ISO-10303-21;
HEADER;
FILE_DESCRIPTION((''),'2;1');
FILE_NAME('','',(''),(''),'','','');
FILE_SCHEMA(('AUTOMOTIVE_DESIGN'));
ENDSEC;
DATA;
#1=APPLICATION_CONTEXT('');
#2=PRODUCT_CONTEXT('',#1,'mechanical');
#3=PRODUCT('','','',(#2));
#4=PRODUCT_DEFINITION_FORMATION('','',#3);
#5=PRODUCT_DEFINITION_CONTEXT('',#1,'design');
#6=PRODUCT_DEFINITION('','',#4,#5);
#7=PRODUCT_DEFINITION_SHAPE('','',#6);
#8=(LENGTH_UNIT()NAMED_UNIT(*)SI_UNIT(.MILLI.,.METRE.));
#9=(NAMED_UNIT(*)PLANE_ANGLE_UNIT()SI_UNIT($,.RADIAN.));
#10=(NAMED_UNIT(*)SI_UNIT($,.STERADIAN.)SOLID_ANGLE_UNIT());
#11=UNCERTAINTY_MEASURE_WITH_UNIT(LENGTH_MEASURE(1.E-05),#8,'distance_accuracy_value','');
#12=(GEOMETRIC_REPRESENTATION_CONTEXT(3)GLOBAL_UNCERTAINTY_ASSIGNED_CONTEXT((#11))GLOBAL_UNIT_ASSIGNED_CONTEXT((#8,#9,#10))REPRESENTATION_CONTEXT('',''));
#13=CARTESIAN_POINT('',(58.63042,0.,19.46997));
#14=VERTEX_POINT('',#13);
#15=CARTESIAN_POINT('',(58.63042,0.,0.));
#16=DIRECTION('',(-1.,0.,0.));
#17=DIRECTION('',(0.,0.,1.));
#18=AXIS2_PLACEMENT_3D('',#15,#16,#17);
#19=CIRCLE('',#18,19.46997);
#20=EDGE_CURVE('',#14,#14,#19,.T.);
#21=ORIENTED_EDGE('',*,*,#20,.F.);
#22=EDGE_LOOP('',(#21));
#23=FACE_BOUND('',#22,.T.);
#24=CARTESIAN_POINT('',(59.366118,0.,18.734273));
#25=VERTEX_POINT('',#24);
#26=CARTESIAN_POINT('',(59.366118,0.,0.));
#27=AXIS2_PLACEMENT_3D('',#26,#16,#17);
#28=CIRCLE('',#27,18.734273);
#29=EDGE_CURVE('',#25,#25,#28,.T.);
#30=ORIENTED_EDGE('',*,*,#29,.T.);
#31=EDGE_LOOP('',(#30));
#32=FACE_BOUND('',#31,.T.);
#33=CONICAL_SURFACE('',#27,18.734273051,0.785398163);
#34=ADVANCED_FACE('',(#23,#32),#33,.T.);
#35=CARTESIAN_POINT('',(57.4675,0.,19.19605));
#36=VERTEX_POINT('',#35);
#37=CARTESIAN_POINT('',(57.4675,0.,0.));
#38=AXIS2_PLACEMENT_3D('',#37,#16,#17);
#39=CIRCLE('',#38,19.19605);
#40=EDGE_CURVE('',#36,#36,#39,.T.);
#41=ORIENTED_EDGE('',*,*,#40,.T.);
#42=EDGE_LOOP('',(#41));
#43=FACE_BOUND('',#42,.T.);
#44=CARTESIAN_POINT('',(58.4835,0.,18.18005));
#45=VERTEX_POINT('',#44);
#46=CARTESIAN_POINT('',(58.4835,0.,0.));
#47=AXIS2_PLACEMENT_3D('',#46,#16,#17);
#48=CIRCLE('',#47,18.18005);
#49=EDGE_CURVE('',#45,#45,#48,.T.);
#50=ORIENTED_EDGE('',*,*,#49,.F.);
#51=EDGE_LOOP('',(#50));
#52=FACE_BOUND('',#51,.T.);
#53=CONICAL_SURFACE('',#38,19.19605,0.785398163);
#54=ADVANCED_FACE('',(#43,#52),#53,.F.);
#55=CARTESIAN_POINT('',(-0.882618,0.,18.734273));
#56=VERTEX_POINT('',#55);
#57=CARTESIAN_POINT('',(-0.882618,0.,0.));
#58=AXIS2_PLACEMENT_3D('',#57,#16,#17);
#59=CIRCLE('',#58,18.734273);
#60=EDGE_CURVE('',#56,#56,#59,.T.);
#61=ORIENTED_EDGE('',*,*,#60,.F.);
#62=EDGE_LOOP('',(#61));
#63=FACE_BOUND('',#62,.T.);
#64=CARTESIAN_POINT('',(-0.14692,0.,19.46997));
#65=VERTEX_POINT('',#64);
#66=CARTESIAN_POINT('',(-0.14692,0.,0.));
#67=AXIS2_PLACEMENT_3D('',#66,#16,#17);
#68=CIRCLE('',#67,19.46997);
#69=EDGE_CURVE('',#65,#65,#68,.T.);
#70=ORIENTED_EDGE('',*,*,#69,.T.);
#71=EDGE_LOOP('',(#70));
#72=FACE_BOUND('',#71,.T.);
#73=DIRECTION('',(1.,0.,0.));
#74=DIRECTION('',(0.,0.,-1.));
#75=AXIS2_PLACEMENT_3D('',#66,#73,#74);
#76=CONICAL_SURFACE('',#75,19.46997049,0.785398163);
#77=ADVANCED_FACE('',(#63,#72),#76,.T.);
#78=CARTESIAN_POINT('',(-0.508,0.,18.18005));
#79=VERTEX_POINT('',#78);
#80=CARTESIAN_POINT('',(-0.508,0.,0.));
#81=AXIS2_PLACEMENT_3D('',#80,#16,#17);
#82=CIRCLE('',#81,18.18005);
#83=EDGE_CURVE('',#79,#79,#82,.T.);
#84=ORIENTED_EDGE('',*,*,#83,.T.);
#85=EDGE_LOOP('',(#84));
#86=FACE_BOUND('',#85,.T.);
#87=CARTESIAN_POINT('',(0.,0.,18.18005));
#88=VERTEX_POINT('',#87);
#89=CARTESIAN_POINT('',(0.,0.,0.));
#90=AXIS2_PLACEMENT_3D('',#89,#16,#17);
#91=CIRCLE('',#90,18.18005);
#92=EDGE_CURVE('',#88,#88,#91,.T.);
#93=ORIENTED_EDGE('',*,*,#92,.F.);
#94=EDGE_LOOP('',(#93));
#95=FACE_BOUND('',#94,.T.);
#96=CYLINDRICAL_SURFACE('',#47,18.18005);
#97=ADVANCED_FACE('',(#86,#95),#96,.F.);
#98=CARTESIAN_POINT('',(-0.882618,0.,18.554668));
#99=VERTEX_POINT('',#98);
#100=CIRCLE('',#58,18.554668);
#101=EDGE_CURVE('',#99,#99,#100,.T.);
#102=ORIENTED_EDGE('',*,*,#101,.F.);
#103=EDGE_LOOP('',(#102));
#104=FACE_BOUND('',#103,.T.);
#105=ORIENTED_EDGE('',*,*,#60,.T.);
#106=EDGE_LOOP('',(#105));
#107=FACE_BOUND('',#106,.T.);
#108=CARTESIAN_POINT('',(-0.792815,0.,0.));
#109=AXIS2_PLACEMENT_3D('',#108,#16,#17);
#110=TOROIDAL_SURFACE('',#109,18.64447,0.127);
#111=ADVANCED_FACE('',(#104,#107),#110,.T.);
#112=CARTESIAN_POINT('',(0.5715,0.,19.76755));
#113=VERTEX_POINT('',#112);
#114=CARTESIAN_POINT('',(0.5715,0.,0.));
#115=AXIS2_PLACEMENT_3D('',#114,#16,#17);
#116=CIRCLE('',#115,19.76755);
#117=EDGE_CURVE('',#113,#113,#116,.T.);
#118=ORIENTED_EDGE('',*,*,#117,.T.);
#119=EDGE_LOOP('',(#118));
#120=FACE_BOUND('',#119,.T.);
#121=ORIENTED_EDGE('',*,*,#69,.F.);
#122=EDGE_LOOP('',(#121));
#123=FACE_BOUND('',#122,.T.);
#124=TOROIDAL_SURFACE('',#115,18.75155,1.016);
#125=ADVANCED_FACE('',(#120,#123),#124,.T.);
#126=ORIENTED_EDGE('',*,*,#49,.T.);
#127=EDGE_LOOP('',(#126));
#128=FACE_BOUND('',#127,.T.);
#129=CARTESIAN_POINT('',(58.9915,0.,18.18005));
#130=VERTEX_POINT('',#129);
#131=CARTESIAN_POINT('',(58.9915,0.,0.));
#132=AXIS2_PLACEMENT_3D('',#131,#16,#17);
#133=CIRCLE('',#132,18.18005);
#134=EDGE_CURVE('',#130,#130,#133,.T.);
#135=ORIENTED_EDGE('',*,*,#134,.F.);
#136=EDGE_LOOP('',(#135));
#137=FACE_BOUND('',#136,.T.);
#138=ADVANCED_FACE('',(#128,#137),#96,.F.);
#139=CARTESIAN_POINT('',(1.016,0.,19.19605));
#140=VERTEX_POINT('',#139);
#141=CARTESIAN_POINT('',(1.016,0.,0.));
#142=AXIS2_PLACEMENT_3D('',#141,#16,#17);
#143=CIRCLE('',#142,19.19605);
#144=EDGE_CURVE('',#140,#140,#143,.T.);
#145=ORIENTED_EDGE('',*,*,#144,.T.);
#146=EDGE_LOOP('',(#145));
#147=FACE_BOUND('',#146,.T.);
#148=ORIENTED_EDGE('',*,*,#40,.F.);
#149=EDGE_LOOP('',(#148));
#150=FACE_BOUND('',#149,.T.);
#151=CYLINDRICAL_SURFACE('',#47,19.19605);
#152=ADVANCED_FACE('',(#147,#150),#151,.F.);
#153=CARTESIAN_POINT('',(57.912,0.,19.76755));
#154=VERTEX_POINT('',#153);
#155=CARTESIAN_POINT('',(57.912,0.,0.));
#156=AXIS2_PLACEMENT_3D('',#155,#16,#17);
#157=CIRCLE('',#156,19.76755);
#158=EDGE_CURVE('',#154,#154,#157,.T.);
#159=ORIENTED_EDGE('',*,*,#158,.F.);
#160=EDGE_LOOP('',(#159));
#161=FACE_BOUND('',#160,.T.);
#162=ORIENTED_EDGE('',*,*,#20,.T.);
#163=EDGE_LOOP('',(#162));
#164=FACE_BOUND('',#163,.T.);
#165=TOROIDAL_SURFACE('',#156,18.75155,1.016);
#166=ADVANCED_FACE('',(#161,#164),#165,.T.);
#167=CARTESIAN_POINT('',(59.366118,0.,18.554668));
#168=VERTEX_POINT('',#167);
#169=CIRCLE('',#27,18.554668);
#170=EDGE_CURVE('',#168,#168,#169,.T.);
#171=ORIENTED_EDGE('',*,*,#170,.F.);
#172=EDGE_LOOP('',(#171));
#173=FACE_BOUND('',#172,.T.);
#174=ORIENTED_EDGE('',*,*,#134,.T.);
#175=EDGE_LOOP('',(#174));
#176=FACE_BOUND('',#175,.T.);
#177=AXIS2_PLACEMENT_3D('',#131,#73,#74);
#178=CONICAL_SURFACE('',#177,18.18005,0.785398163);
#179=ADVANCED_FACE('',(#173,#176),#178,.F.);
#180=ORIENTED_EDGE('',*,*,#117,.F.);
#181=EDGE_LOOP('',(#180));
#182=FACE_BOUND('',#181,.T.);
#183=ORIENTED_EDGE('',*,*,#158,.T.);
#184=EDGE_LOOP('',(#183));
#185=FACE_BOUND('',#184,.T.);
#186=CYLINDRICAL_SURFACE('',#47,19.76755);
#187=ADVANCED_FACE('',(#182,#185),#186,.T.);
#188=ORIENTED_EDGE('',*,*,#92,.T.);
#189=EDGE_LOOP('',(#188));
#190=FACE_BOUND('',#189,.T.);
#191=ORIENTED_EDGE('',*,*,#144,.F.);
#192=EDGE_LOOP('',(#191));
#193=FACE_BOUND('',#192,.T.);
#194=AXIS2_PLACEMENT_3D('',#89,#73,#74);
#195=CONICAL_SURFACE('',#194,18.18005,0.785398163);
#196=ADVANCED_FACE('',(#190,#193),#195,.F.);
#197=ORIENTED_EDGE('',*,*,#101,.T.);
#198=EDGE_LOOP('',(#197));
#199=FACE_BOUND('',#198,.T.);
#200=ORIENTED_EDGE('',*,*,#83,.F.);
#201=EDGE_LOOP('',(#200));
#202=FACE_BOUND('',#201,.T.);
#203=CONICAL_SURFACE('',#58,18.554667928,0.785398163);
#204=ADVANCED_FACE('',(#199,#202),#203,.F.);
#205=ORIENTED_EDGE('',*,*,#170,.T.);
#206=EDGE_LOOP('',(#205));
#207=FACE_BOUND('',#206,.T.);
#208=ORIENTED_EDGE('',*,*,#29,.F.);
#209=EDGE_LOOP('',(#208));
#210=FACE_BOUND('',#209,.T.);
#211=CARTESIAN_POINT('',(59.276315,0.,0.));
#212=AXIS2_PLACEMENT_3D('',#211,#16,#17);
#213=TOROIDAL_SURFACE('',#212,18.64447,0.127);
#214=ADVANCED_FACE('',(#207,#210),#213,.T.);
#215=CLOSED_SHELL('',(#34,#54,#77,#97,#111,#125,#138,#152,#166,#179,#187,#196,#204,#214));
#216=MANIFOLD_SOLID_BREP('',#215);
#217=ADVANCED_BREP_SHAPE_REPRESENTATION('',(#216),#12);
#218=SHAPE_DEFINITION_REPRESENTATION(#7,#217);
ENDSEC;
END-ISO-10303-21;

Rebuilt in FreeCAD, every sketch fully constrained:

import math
import FreeCAD as App
import Part
import Sketcher

V = App.Vector
Q = App.Units.Quantity

doc = App.newDocument("Part")
params = doc.addObject("Spreadsheet::Sheet", "Params")
for row, (alias, value) in enumerate([
    ("sketch1_radius", "0.04 in"),
    ("sketch1_radius2", "0.005 in"),
    ("sketch1_width", "0.02 in"),
    ("revolution_angle", "360 deg"),
], start=1):
    params.set(f"A{row}", alias)
    params.set(f"B{row}", "=" + value)
    params.setAlias(f"B{row}", alias)

body = doc.addObject("PartDesign::Body", "Body")

sketch1 = doc.addObject("Sketcher::SketchObject", "Sketch")
body.addObject(sketch1)
sketch1.AttachmentSupport = (doc.XY_Plane, [""])
sketch1.MapMode = "FlatFace"
sketch1.addGeometry([
    Part.LineSegment(V(-0.88, 18.55, 0), V(-0.51, 18.18, 0)),
    Part.LineSegment(V(-0.51, 18.18, 0), V(0, 18.18, 0)),
    Part.LineSegment(V(0, 18.18, 0), V(1.02, 19.2, 0)),
    Part.LineSegment(V(1.02, 19.2, 0), V(57.47, 19.2, 0)),
    Part.LineSegment(V(57.47, 19.2, 0), V(58.48, 18.18, 0)),
    Part.LineSegment(V(58.48, 18.18, 0), V(58.99, 18.18, 0)),
    Part.LineSegment(V(58.99, 18.18, 0), V(59.37, 18.55, 0)),
    Part.ArcOfCircle(Part.Circle(V(59.28, 18.64, 0), V(0, 0, 1), 0.13), math.radians(-45), math.radians(45)),
    Part.LineSegment(V(59.37, 18.73, 0), V(58.63, 19.47, 0)),
    Part.ArcOfCircle(Part.Circle(V(57.91, 18.75, 0), V(0, 0, 1), 1.02), math.radians(45), math.radians(90)),
    Part.LineSegment(V(57.91, 19.77, 0), V(0.57, 19.77, 0)),
    Part.ArcOfCircle(Part.Circle(V(0.57, 18.75, 0), V(0, 0, 1), 1.02), math.radians(90), math.radians(135)),
    Part.LineSegment(V(-0.15, 19.47, 0), V(-0.88, 18.73, 0)),
    Part.ArcOfCircle(Part.Circle(V(-0.79, 18.64, 0), V(0, 0, 1), 0.13), math.radians(135), math.radians(225)),
], False)
sketch1.addConstraint([
    Sketcher.Constraint("Coincident", 0, 2, 1, 1),
    Sketcher.Constraint("Coincident", 1, 2, 2, 1),
    Sketcher.Constraint("Coincident", 2, 2, 3, 1),
    Sketcher.Constraint("Coincident", 3, 2, 4, 1),
    Sketcher.Constraint("Coincident", 4, 2, 5, 1),
    Sketcher.Constraint("Coincident", 5, 2, 6, 1),
    Sketcher.Constraint("Tangent", 6, 2, 7, 1),
    Sketcher.Constraint("Tangent", 7, 2, 8, 1),
    Sketcher.Constraint("Tangent", 8, 2, 9, 1),
    Sketcher.Constraint("Tangent", 9, 2, 10, 1),
    Sketcher.Constraint("Tangent", 10, 2, 11, 1),
    Sketcher.Constraint("Tangent", 11, 2, 12, 1),
    Sketcher.Constraint("Tangent", 12, 2, 13, 1),
    Sketcher.Constraint("Tangent", 13, 2, 0, 1),
    Sketcher.Constraint("Horizontal", 1),
    Sketcher.Constraint("Horizontal", 3),
    Sketcher.Constraint("Horizontal", 5),
    Sketcher.Constraint("Horizontal", 10),
    Sketcher.Constraint("Equal", 9, 11),
    Sketcher.Constraint("Equal", 7, 13),
    Sketcher.Constraint("PointOnObject", 1, 2, -2),
    Sketcher.Constraint("Perpendicular", 0, 2),
    Sketcher.Constraint("Perpendicular", 2, 4),
    Sketcher.Constraint("Perpendicular", 4, 6),
    Sketcher.Constraint("Perpendicular", 6, 8),
    Sketcher.Constraint("Perpendicular", 8, 12),
    Sketcher.Constraint("Horizontal", 7, 3, 13, 3),
    Sketcher.Constraint("Horizontal", 1, 2, 4, 2),
    Sketcher.Constraint("Horizontal", 8, 2, 11, 2),
    Sketcher.Constraint("Equal", 1, 5),
    Sketcher.Constraint("Radius", 9, Q("0.04 in")),
    Sketcher.Constraint("Radius", 7, Q("0.005 in")),
    Sketcher.Constraint("DistanceX", 1, 1, 1, 2, Q("0.02 in")),
    Sketcher.Constraint("DistanceX", 0, 2, 9, 3, Q("2.3 in")),
    Sketcher.Constraint("DistanceX", -1, 1, 2, 2, Q("0.04 in")),
    Sketcher.Constraint("DistanceX", 3, 1, 3, 2, Q("2.2225 in")),
    Sketcher.Constraint("DistanceY", 4, 2, 9, 2, Q("0.0625 in")),
    Sketcher.Constraint("DistanceY", -1, 1, 7, 3, 18.64447),
])
sketch1.setExpression("Constraints[30]", "Params.sketch1_radius")
sketch1.setExpression("Constraints[31]", "Params.sketch1_radius2")
sketch1.setExpression("Constraints[32]", "Params.sketch1_width")
revolution = doc.addObject("PartDesign::Revolution", "Revolution")
body.addObject(revolution)
revolution.Profile = sketch1
revolution.ReferenceAxis = (sketch1, ["H_Axis"])
revolution.setExpression("Angle", "Params.revolution_angle")

doc.recompute()
